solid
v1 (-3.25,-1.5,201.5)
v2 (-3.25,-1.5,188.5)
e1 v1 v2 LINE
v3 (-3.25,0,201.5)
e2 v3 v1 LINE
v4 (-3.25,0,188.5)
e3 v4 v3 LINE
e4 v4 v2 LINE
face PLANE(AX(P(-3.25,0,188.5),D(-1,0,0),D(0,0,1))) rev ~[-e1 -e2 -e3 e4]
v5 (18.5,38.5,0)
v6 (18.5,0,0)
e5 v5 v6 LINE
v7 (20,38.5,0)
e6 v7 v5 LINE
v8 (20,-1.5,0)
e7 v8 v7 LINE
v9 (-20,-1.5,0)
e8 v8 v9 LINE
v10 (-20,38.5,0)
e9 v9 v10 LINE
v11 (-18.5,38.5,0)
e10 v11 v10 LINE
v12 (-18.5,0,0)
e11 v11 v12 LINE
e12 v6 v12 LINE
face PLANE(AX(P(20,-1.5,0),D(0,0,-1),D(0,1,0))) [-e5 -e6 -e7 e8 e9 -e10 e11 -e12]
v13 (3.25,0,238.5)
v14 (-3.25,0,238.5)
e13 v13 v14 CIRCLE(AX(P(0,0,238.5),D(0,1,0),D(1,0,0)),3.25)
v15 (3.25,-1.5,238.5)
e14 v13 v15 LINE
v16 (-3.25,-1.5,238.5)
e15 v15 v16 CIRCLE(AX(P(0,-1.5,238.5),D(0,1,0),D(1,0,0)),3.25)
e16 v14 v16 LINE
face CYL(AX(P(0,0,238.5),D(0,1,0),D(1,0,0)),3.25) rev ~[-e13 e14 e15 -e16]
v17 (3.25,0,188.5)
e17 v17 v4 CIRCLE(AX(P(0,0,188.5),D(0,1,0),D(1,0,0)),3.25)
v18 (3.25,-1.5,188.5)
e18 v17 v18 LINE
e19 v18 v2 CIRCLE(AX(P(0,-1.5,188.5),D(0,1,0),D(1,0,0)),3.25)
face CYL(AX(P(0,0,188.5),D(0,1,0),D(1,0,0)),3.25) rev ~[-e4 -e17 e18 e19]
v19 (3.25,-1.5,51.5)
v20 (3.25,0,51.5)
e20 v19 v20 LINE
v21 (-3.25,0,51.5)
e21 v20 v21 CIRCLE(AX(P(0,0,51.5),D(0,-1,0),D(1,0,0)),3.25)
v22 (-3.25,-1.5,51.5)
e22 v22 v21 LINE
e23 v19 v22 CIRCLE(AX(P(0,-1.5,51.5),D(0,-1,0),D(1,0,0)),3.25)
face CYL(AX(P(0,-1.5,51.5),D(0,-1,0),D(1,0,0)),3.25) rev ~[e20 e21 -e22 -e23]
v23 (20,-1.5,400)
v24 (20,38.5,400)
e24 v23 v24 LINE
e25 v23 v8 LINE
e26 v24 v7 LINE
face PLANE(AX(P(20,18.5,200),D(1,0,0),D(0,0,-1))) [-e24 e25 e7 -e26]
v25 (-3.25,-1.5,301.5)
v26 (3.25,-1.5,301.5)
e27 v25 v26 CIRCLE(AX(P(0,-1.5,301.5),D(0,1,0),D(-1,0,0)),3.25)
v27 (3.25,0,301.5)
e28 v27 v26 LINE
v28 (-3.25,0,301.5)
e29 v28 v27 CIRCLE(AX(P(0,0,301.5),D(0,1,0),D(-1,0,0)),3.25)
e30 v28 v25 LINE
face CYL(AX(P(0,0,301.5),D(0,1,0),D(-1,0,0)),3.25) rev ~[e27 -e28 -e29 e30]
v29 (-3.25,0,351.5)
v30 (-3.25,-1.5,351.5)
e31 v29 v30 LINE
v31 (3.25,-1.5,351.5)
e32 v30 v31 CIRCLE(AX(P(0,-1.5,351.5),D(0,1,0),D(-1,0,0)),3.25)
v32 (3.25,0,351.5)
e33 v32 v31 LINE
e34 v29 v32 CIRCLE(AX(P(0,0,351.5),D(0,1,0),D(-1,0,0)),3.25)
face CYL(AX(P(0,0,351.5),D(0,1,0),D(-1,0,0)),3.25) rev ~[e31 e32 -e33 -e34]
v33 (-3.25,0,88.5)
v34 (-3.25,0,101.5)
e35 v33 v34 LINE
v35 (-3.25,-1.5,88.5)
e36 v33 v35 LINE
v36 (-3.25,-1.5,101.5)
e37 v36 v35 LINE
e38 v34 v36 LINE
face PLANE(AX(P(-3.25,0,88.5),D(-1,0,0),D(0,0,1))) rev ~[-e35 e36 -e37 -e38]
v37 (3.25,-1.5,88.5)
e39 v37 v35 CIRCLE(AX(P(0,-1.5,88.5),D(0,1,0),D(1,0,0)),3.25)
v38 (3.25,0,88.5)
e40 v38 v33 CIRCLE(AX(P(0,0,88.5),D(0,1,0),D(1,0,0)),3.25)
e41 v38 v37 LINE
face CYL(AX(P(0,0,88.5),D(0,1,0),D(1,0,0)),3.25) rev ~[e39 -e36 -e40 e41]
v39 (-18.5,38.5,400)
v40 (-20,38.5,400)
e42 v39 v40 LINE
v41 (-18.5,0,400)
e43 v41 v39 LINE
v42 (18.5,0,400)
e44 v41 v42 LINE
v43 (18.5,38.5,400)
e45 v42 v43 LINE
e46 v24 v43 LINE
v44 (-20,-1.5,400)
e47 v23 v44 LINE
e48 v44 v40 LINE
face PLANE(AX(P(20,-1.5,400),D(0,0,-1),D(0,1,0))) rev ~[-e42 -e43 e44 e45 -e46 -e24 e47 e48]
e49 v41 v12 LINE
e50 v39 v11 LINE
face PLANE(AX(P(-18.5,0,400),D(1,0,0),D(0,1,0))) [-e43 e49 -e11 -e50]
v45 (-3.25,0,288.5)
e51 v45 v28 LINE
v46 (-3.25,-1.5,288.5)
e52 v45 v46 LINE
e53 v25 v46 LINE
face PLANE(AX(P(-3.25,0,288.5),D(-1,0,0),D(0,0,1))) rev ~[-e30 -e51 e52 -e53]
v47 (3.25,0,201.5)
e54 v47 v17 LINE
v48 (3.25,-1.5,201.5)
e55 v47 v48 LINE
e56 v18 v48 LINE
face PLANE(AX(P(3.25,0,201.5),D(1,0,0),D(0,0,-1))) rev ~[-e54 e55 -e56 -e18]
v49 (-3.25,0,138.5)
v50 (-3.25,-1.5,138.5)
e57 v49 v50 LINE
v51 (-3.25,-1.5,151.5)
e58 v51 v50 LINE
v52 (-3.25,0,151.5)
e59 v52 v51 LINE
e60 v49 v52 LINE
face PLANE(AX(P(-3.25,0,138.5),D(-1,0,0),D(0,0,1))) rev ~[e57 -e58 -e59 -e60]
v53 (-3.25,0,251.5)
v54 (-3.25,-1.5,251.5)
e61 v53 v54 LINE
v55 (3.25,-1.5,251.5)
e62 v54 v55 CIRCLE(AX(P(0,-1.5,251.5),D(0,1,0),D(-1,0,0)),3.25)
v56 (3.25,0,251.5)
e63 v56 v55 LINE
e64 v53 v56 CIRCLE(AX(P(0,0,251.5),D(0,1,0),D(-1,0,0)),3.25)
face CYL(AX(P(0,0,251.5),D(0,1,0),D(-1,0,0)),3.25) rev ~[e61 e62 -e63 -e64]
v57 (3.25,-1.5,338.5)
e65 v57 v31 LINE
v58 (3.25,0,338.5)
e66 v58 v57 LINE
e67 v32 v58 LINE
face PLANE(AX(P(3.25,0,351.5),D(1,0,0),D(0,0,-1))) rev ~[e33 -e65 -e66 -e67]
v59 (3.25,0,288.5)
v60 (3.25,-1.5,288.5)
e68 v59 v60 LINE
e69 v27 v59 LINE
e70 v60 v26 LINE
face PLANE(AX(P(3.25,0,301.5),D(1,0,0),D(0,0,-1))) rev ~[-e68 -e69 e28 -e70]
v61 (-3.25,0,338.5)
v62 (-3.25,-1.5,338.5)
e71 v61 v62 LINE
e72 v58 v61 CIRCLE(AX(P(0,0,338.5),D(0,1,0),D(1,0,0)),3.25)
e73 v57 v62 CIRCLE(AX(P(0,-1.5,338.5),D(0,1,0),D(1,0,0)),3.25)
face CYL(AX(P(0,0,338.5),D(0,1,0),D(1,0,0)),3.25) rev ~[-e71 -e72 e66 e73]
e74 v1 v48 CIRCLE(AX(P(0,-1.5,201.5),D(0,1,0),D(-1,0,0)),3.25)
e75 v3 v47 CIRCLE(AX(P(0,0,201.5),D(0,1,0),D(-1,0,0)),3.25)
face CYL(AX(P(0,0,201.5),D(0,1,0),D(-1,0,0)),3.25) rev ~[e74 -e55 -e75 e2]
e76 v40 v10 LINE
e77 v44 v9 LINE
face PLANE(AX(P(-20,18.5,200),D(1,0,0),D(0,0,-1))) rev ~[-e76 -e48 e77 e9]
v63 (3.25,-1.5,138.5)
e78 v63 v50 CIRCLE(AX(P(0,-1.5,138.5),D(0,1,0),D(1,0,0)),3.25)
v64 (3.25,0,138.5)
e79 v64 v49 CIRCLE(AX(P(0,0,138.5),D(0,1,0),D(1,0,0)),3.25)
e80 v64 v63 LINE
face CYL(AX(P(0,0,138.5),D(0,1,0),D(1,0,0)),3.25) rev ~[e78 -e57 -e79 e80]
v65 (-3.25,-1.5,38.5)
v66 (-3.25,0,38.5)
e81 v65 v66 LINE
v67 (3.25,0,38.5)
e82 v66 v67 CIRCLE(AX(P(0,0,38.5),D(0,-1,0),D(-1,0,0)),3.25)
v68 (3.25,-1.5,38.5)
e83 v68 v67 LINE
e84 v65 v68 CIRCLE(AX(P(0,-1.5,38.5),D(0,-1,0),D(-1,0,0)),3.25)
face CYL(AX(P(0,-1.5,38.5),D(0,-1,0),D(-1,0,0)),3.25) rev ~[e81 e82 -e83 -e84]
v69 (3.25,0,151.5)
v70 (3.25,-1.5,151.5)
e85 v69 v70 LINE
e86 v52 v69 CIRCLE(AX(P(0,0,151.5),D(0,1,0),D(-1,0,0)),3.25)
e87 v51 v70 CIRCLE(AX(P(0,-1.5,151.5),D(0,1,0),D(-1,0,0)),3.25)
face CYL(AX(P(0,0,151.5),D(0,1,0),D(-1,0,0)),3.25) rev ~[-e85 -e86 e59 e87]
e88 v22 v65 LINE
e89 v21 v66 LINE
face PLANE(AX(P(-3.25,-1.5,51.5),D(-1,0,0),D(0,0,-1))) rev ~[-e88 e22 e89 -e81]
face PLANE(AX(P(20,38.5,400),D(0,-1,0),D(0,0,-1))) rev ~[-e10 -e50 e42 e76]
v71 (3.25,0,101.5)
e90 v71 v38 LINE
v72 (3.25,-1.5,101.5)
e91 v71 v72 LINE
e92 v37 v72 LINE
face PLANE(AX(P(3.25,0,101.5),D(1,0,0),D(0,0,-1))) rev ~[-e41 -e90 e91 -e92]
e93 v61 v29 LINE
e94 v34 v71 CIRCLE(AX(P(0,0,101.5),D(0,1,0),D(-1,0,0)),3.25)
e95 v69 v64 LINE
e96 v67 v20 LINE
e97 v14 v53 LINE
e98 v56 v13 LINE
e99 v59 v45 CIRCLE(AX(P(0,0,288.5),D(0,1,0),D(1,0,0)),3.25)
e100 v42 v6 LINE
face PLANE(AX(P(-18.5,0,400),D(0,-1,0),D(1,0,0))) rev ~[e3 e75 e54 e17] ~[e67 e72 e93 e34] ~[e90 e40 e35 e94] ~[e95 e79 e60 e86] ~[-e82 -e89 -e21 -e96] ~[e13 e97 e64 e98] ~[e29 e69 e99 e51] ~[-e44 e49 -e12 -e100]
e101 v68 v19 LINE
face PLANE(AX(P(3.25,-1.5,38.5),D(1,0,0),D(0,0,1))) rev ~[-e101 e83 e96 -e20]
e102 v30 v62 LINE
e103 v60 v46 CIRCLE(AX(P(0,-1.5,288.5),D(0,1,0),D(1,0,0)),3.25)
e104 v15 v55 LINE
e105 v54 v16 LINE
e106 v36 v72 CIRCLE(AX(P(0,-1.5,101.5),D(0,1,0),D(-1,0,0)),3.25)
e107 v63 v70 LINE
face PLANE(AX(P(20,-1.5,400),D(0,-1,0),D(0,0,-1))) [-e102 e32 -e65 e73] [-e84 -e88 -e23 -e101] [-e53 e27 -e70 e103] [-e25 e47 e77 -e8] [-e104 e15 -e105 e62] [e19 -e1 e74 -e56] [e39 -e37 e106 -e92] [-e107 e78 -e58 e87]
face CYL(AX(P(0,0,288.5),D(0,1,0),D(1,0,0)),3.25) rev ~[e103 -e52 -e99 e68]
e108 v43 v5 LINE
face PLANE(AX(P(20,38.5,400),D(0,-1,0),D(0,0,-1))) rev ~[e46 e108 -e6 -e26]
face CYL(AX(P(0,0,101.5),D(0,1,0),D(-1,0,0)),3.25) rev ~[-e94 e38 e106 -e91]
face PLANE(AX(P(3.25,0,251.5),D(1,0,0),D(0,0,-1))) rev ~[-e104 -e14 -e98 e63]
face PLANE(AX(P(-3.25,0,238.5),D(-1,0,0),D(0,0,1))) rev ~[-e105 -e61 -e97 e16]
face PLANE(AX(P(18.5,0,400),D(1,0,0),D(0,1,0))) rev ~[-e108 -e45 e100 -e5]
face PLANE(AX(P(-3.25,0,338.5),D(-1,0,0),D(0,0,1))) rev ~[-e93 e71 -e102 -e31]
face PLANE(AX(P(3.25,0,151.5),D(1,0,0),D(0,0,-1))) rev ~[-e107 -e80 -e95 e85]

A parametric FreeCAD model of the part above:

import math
import FreeCAD as App
import Part
import Sketcher

V = App.Vector
Q = App.Units.Quantity


def add_polygon(sketch, points):
    """Adds a closed chain of lines whose ends are joined by coincident constraints."""
    first, n = sketch.GeometryCount, len(points)
    for a, b in zip(points, points[1:] + points[:1]):
        sketch.addGeometry(Part.LineSegment(App.Vector(*a, 0), App.Vector(*b, 0)), False)
    for i in range(n):
        sketch.addConstraint(Sketcher.Constraint("Coincident", first + i, 2, first + (i + 1) % n, 1))

doc = App.newDocument("Part")
params = doc.addObject("Spreadsheet::Sheet", "Params")
for row, (alias, value) in enumerate([
    ("sketch1_width", "40 mm"),
    ("sketch1_height", "400 mm"),
    ("pad1_length", "40 mm"),
    ("sketch2_width", "37 mm"),
    ("sketch2_height", "38.5 mm"),
    ("sketch3_height", "13 mm"),
    ("sketch3_radius", "3.25 mm"),
    ("sketch4_height", "13 mm"),
    ("sketch4_radius", "3.25 mm"),
    ("sketch5_height", "13 mm"),
    ("sketch5_radius", "3.25 mm"),
    ("sketch6_height", "13 mm"),
    ("sketch6_radius", "3.25 mm"),
    ("sketch7_height", "13 mm"),
    ("sketch7_radius", "3.25 mm"),
    ("sketch8_height", "13 mm"),
    ("sketch8_radius", "3.25 mm"),
    ("sketch9_height", "13 mm"),
    ("sketch9_radius", "3.25 mm"),
], start=1):
    params.set(f"A{row}", alias)
    params.set(f"B{row}", "=" + value)
    params.setAlias(f"B{row}", alias)

body = doc.addObject("PartDesign::Body", "Body")

sketch1 = body.newObject("Sketcher::SketchObject", "Sketch")
sketch1.AttachmentSupport = (doc.getObject("YZ_Plane"), [""])
sketch1.MapMode = "FlatFace"
sketch1.AttachmentOffset = App.Placement(V(0, 0, 20), App.Rotation())
add_polygon(sketch1, [(38, 400), (-2, 400), (-2, 0), (38, 0)])
sketch1.addConstraint(Sketcher.Constraint("Horizontal", 0))
sketch1.addConstraint(Sketcher.Constraint("Vertical", 1))
sketch1.addConstraint(Sketcher.Constraint("Horizontal", 2))
sketch1.addConstraint(Sketcher.Constraint("Vertical", 3))
sketch1.addConstraint(Sketcher.Constraint("PointOnObject", 1, 2, -1))
sketch1.addConstraint(Sketcher.Constraint("DistanceX", 0, 2, 0, 1, Q("40 mm")))
sketch1.addConstraint(Sketcher.Constraint("DistanceY", 1, 2, 1, 1, Q("400 mm")))
sketch1.addConstraint(Sketcher.Constraint("DistanceX", 0, 2, -1, 1, Q("1.5 mm")))
sketch1.setExpression("Constraints[9]", "Params.sketch1_width")
sketch1.setExpression("Constraints[10]", "Params.sketch1_height")
pad1 = body.newObject("PartDesign::Pad", "Pad")
pad1.Profile = sketch1
pad1.setExpression("Length", "Params.pad1_length")
pad1.Reversed = True

sketch2 = body.newObject("Sketcher::SketchObject", "Sketch001")
sketch2.AttachmentSupport = (doc.getObject("XY_Plane"), [""])
sketch2.MapMode = "FlatFace"
sketch2.AttachmentOffset = App.Placement(V(0, 0, 400), App.Rotation())
add_polygon(sketch2, [(-18, 38), (-18, 0), (18, 0), (18, 38)])
sketch2.addConstraint(Sketcher.Constraint("Vertical", 0))
sketch2.addConstraint(Sketcher.Constraint("Horizontal", 1))
sketch2.addConstraint(Sketcher.Constraint("Vertical", 2))
sketch2.addConstraint(Sketcher.Constraint("Horizontal", 3))
sketch2.addConstraint(Sketcher.Constraint("Symmetric", 0, 2, 1, 2, -1, 1))
sketch2.addConstraint(Sketcher.Constraint("DistanceX", 1, 1, 1, 2, Q("37 mm")))
sketch2.addConstraint(Sketcher.Constraint("DistanceY", 0, 2, 0, 1, Q("38.5 mm")))
sketch2.setExpression("Constraints[9]", "Params.sketch2_width")
sketch2.setExpression("Constraints[10]", "Params.sketch2_height")
pocket1 = body.newObject("PartDesign::Pocket", "Pocket")
pocket1.Profile = sketch2
pocket1.Type = "ThroughAll"

sketch3 = body.newObject("Sketcher::SketchObject", "Sketch002")
sketch3.AttachmentSupport = (doc.getObject("XZ_Plane"), [""])
sketch3.MapMode = "FlatFace"
sketch3.addGeometry(Part.LineSegment(V(3.2, 351.5, 0), V(3.2, 338.5, 0)), False)
sketch3.addGeometry(Part.ArcOfCircle(Part.Circle(V(0, 338.5, 0), V(0, 0, 1), 3.2), math.radians(180), math.radians(360)), False)
sketch3.addGeometry(Part.LineSegment(V(-3.2, 338.5, 0), V(-3.2, 351.5, 0)), False)
sketch3.addGeometry(Part.ArcOfCircle(Part.Circle(V(0, 351.5, 0), V(0, 0, 1), 3.2), math.radians(0), math.radians(180)), False)
sketch3.addConstraint(Sketcher.Constraint("Tangent", 0, 2, 1, 2))
sketch3.addConstraint(Sketcher.Constraint("Tangent", 1, 1, 2, 1))
sketch3.addConstraint(Sketcher.Constraint("Tangent", 2, 2, 3, 2))
sketch3.addConstraint(Sketcher.Constraint("Tangent", 3, 1, 0, 1))
sketch3.addConstraint(Sketcher.Constraint("Vertical", 0))
sketch3.addConstraint(Sketcher.Constraint("Vertical", 2))
sketch3.addConstraint(Sketcher.Constraint("PointOnObject", 1, 3, -2))
sketch3.addConstraint(Sketcher.Constraint("DistanceY", 0, 2, 0, 1, Q("13 mm")))
sketch3.addConstraint(Sketcher.Constraint("Radius", 1, Q("3.25 mm")))
sketch3.addConstraint(Sketcher.Constraint("DistanceY", -1, 1, 1, 3, Q("338.5 mm")))
sketch3.setExpression("Constraints[7]", "Params.sketch3_height")
sketch3.setExpression("Constraints[8]", "Params.sketch3_radius")
pocket2 = body.newObject("PartDesign::Pocket", "Pocket001")
pocket2.Profile = sketch3
pocket2.Type = "ThroughAll"
pocket2.Reversed = True

sketch4 = body.newObject("Sketcher::SketchObject", "Sketch003")
sketch4.AttachmentSupport = (doc.getObject("XZ_Plane"), [""])
sketch4.MapMode = "FlatFace"
sketch4.addGeometry(Part.LineSegment(V(3.2, 301.5, 0), V(3.2, 288.5, 0)), False)
sketch4.addGeometry(Part.ArcOfCircle(Part.Circle(V(0, 288.5, 0), V(0, 0, 1), 3.2), math.radians(180), math.radians(360)), False)
sketch4.addGeometry(Part.LineSegment(V(-3.2, 288.5, 0), V(-3.2, 301.5, 0)), False)
sketch4.addGeometry(Part.ArcOfCircle(Part.Circle(V(0, 301.5, 0), V(0, 0, 1), 3.2), math.radians(0), math.radians(180)), False)
sketch4.addConstraint(Sketcher.Constraint("Tangent", 0, 2, 1, 2))
sketch4.addConstraint(Sketcher.Constraint("Tangent", 1, 1, 2, 1))
sketch4.addConstraint(Sketcher.Constraint("Tangent", 2, 2, 3, 2))
sketch4.addConstraint(Sketcher.Constraint("Tangent", 3, 1, 0, 1))
sketch4.addConstraint(Sketcher.Constraint("Vertical", 0))
sketch4.addConstraint(Sketcher.Constraint("Vertical", 2))
sketch4.addConstraint(Sketcher.Constraint("PointOnObject", 1, 3, -2))
sketch4.addConstraint(Sketcher.Constraint("DistanceY", 0, 2, 0, 1, Q("13 mm")))
sketch4.addConstraint(Sketcher.Constraint("Radius", 1, Q("3.25 mm")))
sketch4.addConstraint(Sketcher.Constraint("DistanceY", -1, 1, 1, 3, Q("288.5 mm")))
sketch4.setExpression("Constraints[7]", "Params.sketch4_height")
sketch4.setExpression("Constraints[8]", "Params.sketch4_radius")
pocket3 = body.newObject("PartDesign::Pocket", "Pocket002")
pocket3.Profile = sketch4
pocket3.Type = "ThroughAll"
pocket3.Reversed = True

sketch5 = body.newObject("Sketcher::SketchObject", "Sketch004")
sketch5.AttachmentSupport = (doc.getObject("XZ_Plane"), [""])
sketch5.MapMode = "FlatFace"
sketch5.addGeometry(Part.LineSegment(V(3.2, 251.5, 0), V(3.2, 238.5, 0)), False)
sketch5.addGeometry(Part.ArcOfCircle(Part.Circle(V(0, 238.5, 0), V(0, 0, 1), 3.2), math.radians(180), math.radians(360)), False)
sketch5.addGeometry(Part.LineSegment(V(-3.2, 238.5, 0), V(-3.2, 251.5, 0)), False)
sketch5.addGeometry(Part.ArcOfCircle(Part.Circle(V(0, 251.5, 0), V(0, 0, 1), 3.2), math.radians(0), math.radians(180)), False)
sketch5.addConstraint(Sketcher.Constraint("Tangent", 0, 2, 1, 2))
sketch5.addConstraint(Sketcher.Constraint("Tangent", 1, 1, 2, 1))
sketch5.addConstraint(Sketcher.Constraint("Tangent", 2, 2, 3, 2))
sketch5.addConstraint(Sketcher.Constraint("Tangent", 3, 1, 0, 1))
sketch5.addConstraint(Sketcher.Constraint("Vertical", 0))
sketch5.addConstraint(Sketcher.Constraint("Vertical", 2))
sketch5.addConstraint(Sketcher.Constraint("PointOnObject", 1, 3, -2))
sketch5.addConstraint(Sketcher.Constraint("DistanceY", 0, 2, 0, 1, Q("13 mm")))
sketch5.addConstraint(Sketcher.Constraint("Radius", 1, Q("3.25 mm")))
sketch5.addConstraint(Sketcher.Constraint("DistanceY", -1, 1, 1, 3, Q("238.5 mm")))
sketch5.setExpression("Constraints[7]", "Params.sketch5_height")
sketch5.setExpression("Constraints[8]", "Params.sketch5_radius")
pocket4 = body.newObject("PartDesign::Pocket", "Pocket003")
pocket4.Profile = sketch5
pocket4.Type = "ThroughAll"
pocket4.Reversed = True

sketch6 = body.newObject("Sketcher::SketchObject", "Sketch005")
sketch6.AttachmentSupport = (doc.getObject("XZ_Plane"), [""])
sketch6.MapMode = "FlatFace"
sketch6.addGeometry(Part.LineSegment(V(3.2, 201.5, 0), V(3.2, 188.5, 0)), False)
sketch6.addGeometry(Part.ArcOfCircle(Part.Circle(V(0, 188.5, 0), V(0, 0, 1), 3.2), math.radians(180), math.radians(360)), False)
sketch6.addGeometry(Part.LineSegment(V(-3.2, 188.5, 0), V(-3.2, 201.5, 0)), False)
sketch6.addGeometry(Part.ArcOfCircle(Part.Circle(V(0, 201.5, 0), V(0, 0, 1), 3.2), math.radians(0), math.radians(180)), False)
sketch6.addConstraint(Sketcher.Constraint("Tangent", 0, 2, 1, 2))
sketch6.addConstraint(Sketcher.Constraint("Tangent", 1, 1, 2, 1))
sketch6.addConstraint(Sketcher.Constraint("Tangent", 2, 2, 3, 2))
sketch6.addConstraint(Sketcher.Constraint("Tangent", 3, 1, 0, 1))
sketch6.addConstraint(Sketcher.Constraint("Vertical", 0))
sketch6.addConstraint(Sketcher.Constraint("Vertical", 2))
sketch6.addConstraint(Sketcher.Constraint("PointOnObject", 1, 3, -2))
sketch6.addConstraint(Sketcher.Constraint("DistanceY", 0, 2, 0, 1, Q("13 mm")))
sketch6.addConstraint(Sketcher.Constraint("Radius", 1, Q("3.25 mm")))
sketch6.addConstraint(Sketcher.Constraint("DistanceY", -1, 1, 1, 3, Q("188.5 mm")))
sketch6.setExpression("Constraints[7]", "Params.sketch6_height")
sketch6.setExpression("Constraints[8]", "Params.sketch6_radius")
pocket5 = body.newObject("PartDesign::Pocket", "Pocket004")
pocket5.Profile = sketch6
pocket5.Type = "ThroughAll"
pocket5.Reversed = True

sketch7 = body.newObject("Sketcher::SketchObject", "Sketch006")
sketch7.AttachmentSupport = (doc.getObject("XZ_Plane"), [""])
sketch7.MapMode = "FlatFace"
sketch7.addGeometry(Part.LineSegment(V(3.2, 151.5, 0), V(3.2, 138.5, 0)), False)
sketch7.addGeometry(Part.ArcOfCircle(Part.Circle(V(0, 138.5, 0), V(0, 0, 1), 3.2), math.radians(180), math.radians(360)), False)
sketch7.addGeometry(Part.LineSegment(V(-3.2, 138.5, 0), V(-3.2, 151.5, 0)), False)
sketch7.addGeometry(Part.ArcOfCircle(Part.Circle(V(0, 151.5, 0), V(0, 0, 1), 3.2), math.radians(0), math.radians(180)), False)
sketch7.addConstraint(Sketcher.Constraint("Tangent", 0, 2, 1, 2))
sketch7.addConstraint(Sketcher.Constraint("Tangent", 1, 1, 2, 1))
sketch7.addConstraint(Sketcher.Constraint("Tangent", 2, 2, 3, 2))
sketch7.addConstraint(Sketcher.Constraint("Tangent", 3, 1, 0, 1))
sketch7.addConstraint(Sketcher.Constraint("Vertical", 0))
sketch7.addConstraint(Sketcher.Constraint("Vertical", 2))
sketch7.addConstraint(Sketcher.Constraint("PointOnObject", 1, 3, -2))
sketch7.addConstraint(Sketcher.Constraint("DistanceY", 0, 2, 0, 1, Q("13 mm")))
sketch7.addConstraint(Sketcher.Constraint("Radius", 1, Q("3.25 mm")))
sketch7.addConstraint(Sketcher.Constraint("DistanceY", -1, 1, 1, 3, Q("138.5 mm")))
sketch7.setExpression("Constraints[7]", "Params.sketch7_height")
sketch7.setExpression("Constraints[8]", "Params.sketch7_radius")
pocket6 = body.newObject("PartDesign::Pocket", "Pocket005")
pocket6.Profile = sketch7
pocket6.Type = "ThroughAll"
pocket6.Reversed = True

sketch8 = body.newObject("Sketcher::SketchObject", "Sketch007")
sketch8.AttachmentSupport = (doc.getObject("XZ_Plane"), [""])
sketch8.MapMode = "FlatFace"
sketch8.addGeometry(Part.LineSegment(V(3.2, 101.5, 0), V(3.2, 88.5, 0)), False)
sketch8.addGeometry(Part.ArcOfCircle(Part.Circle(V(0, 88.5, 0), V(0, 0, 1), 3.2), math.radians(180), math.radians(360)), False)
sketch8.addGeometry(Part.LineSegment(V(-3.2, 88.5, 0), V(-3.2, 101.5, 0)), False)
sketch8.addGeometry(Part.ArcOfCircle(Part.Circle(V(0, 101.5, 0), V(0, 0, 1), 3.2), math.radians(0), math.radians(180)), False)
sketch8.addConstraint(Sketcher.Constraint("Tangent", 0, 2, 1, 2))
sketch8.addConstraint(Sketcher.Constraint("Tangent", 1, 1, 2, 1))
sketch8.addConstraint(Sketcher.Constraint("Tangent", 2, 2, 3, 2))
sketch8.addConstraint(Sketcher.Constraint("Tangent", 3, 1, 0, 1))
sketch8.addConstraint(Sketcher.Constraint("Vertical", 0))
sketch8.addConstraint(Sketcher.Constraint("Vertical", 2))
sketch8.addConstraint(Sketcher.Constraint("PointOnObject", 1, 3, -2))
sketch8.addConstraint(Sketcher.Constraint("DistanceY", 0, 2, 0, 1, Q("13 mm")))
sketch8.addConstraint(Sketcher.Constraint("Radius", 1, Q("3.25 mm")))
sketch8.addConstraint(Sketcher.Constraint("DistanceY", -1, 1, 1, 3, Q("88.5 mm")))
sketch8.setExpression("Constraints[7]", "Params.sketch8_height")
sketch8.setExpression("Constraints[8]", "Params.sketch8_radius")
pocket7 = body.newObject("PartDesign::Pocket", "Pocket006")
pocket7.Profile = sketch8
pocket7.Type = "ThroughAll"
pocket7.Reversed = True

sketch9 = body.newObject("Sketcher::SketchObject", "Sketch008")
sketch9.AttachmentSupport = (doc.getObject("XZ_Plane"), [""])
sketch9.MapMode = "FlatFace"
sketch9.AttachmentOffset = App.Placement(V(0, 0, 1.5), App.Rotation())
sketch9.addGeometry(Part.LineSegment(V(-3.2, 51.5, 0), V(-3.2, 38.5, 0)), False)
sketch9.addGeometry(Part.ArcOfCircle(Part.Circle(V(0, 38.5, 0), V(0, 0, 1), 3.2), math.radians(180), math.radians(360)), False)
sketch9.addGeometry(Part.LineSegment(V(3.2, 38.5, 0), V(3.2, 51.5, 0)), False)
sketch9.addGeometry(Part.ArcOfCircle(Part.Circle(V(0, 51.5, 0), V(0, 0, 1), 3.2), math.radians(0), math.radians(180)), False)
sketch9.addConstraint(Sketcher.Constraint("Tangent", 0, 2, 1, 1))
sketch9.addConstraint(Sketcher.Constraint("Tangent", 1, 2, 2, 1))
sketch9.addConstraint(Sketcher.Constraint("Tangent", 2, 2, 3, 1))
sketch9.addConstraint(Sketcher.Constraint("Tangent", 3, 2, 0, 1))
sketch9.addConstraint(Sketcher.Constraint("Vertical", 0))
sketch9.addConstraint(Sketcher.Constraint("Vertical", 2))
sketch9.addConstraint(Sketcher.Constraint("PointOnObject", 1, 3, -2))
sketch9.addConstraint(Sketcher.Constraint("DistanceY", 0, 2, 0, 1, Q("13 mm")))
sketch9.addConstraint(Sketcher.Constraint("Radius", 1, Q("3.25 mm")))
sketch9.addConstraint(Sketcher.Constraint("DistanceY", -1, 1, 1, 3, Q("38.5 mm")))
sketch9.setExpression("Constraints[7]", "Params.sketch9_height")
sketch9.setExpression("Constraints[8]", "Params.sketch9_radius")
pocket8 = body.newObject("PartDesign::Pocket", "Pocket007")
pocket8.Profile = sketch9
pocket8.Type = "ThroughAll"

doc.recompute()
